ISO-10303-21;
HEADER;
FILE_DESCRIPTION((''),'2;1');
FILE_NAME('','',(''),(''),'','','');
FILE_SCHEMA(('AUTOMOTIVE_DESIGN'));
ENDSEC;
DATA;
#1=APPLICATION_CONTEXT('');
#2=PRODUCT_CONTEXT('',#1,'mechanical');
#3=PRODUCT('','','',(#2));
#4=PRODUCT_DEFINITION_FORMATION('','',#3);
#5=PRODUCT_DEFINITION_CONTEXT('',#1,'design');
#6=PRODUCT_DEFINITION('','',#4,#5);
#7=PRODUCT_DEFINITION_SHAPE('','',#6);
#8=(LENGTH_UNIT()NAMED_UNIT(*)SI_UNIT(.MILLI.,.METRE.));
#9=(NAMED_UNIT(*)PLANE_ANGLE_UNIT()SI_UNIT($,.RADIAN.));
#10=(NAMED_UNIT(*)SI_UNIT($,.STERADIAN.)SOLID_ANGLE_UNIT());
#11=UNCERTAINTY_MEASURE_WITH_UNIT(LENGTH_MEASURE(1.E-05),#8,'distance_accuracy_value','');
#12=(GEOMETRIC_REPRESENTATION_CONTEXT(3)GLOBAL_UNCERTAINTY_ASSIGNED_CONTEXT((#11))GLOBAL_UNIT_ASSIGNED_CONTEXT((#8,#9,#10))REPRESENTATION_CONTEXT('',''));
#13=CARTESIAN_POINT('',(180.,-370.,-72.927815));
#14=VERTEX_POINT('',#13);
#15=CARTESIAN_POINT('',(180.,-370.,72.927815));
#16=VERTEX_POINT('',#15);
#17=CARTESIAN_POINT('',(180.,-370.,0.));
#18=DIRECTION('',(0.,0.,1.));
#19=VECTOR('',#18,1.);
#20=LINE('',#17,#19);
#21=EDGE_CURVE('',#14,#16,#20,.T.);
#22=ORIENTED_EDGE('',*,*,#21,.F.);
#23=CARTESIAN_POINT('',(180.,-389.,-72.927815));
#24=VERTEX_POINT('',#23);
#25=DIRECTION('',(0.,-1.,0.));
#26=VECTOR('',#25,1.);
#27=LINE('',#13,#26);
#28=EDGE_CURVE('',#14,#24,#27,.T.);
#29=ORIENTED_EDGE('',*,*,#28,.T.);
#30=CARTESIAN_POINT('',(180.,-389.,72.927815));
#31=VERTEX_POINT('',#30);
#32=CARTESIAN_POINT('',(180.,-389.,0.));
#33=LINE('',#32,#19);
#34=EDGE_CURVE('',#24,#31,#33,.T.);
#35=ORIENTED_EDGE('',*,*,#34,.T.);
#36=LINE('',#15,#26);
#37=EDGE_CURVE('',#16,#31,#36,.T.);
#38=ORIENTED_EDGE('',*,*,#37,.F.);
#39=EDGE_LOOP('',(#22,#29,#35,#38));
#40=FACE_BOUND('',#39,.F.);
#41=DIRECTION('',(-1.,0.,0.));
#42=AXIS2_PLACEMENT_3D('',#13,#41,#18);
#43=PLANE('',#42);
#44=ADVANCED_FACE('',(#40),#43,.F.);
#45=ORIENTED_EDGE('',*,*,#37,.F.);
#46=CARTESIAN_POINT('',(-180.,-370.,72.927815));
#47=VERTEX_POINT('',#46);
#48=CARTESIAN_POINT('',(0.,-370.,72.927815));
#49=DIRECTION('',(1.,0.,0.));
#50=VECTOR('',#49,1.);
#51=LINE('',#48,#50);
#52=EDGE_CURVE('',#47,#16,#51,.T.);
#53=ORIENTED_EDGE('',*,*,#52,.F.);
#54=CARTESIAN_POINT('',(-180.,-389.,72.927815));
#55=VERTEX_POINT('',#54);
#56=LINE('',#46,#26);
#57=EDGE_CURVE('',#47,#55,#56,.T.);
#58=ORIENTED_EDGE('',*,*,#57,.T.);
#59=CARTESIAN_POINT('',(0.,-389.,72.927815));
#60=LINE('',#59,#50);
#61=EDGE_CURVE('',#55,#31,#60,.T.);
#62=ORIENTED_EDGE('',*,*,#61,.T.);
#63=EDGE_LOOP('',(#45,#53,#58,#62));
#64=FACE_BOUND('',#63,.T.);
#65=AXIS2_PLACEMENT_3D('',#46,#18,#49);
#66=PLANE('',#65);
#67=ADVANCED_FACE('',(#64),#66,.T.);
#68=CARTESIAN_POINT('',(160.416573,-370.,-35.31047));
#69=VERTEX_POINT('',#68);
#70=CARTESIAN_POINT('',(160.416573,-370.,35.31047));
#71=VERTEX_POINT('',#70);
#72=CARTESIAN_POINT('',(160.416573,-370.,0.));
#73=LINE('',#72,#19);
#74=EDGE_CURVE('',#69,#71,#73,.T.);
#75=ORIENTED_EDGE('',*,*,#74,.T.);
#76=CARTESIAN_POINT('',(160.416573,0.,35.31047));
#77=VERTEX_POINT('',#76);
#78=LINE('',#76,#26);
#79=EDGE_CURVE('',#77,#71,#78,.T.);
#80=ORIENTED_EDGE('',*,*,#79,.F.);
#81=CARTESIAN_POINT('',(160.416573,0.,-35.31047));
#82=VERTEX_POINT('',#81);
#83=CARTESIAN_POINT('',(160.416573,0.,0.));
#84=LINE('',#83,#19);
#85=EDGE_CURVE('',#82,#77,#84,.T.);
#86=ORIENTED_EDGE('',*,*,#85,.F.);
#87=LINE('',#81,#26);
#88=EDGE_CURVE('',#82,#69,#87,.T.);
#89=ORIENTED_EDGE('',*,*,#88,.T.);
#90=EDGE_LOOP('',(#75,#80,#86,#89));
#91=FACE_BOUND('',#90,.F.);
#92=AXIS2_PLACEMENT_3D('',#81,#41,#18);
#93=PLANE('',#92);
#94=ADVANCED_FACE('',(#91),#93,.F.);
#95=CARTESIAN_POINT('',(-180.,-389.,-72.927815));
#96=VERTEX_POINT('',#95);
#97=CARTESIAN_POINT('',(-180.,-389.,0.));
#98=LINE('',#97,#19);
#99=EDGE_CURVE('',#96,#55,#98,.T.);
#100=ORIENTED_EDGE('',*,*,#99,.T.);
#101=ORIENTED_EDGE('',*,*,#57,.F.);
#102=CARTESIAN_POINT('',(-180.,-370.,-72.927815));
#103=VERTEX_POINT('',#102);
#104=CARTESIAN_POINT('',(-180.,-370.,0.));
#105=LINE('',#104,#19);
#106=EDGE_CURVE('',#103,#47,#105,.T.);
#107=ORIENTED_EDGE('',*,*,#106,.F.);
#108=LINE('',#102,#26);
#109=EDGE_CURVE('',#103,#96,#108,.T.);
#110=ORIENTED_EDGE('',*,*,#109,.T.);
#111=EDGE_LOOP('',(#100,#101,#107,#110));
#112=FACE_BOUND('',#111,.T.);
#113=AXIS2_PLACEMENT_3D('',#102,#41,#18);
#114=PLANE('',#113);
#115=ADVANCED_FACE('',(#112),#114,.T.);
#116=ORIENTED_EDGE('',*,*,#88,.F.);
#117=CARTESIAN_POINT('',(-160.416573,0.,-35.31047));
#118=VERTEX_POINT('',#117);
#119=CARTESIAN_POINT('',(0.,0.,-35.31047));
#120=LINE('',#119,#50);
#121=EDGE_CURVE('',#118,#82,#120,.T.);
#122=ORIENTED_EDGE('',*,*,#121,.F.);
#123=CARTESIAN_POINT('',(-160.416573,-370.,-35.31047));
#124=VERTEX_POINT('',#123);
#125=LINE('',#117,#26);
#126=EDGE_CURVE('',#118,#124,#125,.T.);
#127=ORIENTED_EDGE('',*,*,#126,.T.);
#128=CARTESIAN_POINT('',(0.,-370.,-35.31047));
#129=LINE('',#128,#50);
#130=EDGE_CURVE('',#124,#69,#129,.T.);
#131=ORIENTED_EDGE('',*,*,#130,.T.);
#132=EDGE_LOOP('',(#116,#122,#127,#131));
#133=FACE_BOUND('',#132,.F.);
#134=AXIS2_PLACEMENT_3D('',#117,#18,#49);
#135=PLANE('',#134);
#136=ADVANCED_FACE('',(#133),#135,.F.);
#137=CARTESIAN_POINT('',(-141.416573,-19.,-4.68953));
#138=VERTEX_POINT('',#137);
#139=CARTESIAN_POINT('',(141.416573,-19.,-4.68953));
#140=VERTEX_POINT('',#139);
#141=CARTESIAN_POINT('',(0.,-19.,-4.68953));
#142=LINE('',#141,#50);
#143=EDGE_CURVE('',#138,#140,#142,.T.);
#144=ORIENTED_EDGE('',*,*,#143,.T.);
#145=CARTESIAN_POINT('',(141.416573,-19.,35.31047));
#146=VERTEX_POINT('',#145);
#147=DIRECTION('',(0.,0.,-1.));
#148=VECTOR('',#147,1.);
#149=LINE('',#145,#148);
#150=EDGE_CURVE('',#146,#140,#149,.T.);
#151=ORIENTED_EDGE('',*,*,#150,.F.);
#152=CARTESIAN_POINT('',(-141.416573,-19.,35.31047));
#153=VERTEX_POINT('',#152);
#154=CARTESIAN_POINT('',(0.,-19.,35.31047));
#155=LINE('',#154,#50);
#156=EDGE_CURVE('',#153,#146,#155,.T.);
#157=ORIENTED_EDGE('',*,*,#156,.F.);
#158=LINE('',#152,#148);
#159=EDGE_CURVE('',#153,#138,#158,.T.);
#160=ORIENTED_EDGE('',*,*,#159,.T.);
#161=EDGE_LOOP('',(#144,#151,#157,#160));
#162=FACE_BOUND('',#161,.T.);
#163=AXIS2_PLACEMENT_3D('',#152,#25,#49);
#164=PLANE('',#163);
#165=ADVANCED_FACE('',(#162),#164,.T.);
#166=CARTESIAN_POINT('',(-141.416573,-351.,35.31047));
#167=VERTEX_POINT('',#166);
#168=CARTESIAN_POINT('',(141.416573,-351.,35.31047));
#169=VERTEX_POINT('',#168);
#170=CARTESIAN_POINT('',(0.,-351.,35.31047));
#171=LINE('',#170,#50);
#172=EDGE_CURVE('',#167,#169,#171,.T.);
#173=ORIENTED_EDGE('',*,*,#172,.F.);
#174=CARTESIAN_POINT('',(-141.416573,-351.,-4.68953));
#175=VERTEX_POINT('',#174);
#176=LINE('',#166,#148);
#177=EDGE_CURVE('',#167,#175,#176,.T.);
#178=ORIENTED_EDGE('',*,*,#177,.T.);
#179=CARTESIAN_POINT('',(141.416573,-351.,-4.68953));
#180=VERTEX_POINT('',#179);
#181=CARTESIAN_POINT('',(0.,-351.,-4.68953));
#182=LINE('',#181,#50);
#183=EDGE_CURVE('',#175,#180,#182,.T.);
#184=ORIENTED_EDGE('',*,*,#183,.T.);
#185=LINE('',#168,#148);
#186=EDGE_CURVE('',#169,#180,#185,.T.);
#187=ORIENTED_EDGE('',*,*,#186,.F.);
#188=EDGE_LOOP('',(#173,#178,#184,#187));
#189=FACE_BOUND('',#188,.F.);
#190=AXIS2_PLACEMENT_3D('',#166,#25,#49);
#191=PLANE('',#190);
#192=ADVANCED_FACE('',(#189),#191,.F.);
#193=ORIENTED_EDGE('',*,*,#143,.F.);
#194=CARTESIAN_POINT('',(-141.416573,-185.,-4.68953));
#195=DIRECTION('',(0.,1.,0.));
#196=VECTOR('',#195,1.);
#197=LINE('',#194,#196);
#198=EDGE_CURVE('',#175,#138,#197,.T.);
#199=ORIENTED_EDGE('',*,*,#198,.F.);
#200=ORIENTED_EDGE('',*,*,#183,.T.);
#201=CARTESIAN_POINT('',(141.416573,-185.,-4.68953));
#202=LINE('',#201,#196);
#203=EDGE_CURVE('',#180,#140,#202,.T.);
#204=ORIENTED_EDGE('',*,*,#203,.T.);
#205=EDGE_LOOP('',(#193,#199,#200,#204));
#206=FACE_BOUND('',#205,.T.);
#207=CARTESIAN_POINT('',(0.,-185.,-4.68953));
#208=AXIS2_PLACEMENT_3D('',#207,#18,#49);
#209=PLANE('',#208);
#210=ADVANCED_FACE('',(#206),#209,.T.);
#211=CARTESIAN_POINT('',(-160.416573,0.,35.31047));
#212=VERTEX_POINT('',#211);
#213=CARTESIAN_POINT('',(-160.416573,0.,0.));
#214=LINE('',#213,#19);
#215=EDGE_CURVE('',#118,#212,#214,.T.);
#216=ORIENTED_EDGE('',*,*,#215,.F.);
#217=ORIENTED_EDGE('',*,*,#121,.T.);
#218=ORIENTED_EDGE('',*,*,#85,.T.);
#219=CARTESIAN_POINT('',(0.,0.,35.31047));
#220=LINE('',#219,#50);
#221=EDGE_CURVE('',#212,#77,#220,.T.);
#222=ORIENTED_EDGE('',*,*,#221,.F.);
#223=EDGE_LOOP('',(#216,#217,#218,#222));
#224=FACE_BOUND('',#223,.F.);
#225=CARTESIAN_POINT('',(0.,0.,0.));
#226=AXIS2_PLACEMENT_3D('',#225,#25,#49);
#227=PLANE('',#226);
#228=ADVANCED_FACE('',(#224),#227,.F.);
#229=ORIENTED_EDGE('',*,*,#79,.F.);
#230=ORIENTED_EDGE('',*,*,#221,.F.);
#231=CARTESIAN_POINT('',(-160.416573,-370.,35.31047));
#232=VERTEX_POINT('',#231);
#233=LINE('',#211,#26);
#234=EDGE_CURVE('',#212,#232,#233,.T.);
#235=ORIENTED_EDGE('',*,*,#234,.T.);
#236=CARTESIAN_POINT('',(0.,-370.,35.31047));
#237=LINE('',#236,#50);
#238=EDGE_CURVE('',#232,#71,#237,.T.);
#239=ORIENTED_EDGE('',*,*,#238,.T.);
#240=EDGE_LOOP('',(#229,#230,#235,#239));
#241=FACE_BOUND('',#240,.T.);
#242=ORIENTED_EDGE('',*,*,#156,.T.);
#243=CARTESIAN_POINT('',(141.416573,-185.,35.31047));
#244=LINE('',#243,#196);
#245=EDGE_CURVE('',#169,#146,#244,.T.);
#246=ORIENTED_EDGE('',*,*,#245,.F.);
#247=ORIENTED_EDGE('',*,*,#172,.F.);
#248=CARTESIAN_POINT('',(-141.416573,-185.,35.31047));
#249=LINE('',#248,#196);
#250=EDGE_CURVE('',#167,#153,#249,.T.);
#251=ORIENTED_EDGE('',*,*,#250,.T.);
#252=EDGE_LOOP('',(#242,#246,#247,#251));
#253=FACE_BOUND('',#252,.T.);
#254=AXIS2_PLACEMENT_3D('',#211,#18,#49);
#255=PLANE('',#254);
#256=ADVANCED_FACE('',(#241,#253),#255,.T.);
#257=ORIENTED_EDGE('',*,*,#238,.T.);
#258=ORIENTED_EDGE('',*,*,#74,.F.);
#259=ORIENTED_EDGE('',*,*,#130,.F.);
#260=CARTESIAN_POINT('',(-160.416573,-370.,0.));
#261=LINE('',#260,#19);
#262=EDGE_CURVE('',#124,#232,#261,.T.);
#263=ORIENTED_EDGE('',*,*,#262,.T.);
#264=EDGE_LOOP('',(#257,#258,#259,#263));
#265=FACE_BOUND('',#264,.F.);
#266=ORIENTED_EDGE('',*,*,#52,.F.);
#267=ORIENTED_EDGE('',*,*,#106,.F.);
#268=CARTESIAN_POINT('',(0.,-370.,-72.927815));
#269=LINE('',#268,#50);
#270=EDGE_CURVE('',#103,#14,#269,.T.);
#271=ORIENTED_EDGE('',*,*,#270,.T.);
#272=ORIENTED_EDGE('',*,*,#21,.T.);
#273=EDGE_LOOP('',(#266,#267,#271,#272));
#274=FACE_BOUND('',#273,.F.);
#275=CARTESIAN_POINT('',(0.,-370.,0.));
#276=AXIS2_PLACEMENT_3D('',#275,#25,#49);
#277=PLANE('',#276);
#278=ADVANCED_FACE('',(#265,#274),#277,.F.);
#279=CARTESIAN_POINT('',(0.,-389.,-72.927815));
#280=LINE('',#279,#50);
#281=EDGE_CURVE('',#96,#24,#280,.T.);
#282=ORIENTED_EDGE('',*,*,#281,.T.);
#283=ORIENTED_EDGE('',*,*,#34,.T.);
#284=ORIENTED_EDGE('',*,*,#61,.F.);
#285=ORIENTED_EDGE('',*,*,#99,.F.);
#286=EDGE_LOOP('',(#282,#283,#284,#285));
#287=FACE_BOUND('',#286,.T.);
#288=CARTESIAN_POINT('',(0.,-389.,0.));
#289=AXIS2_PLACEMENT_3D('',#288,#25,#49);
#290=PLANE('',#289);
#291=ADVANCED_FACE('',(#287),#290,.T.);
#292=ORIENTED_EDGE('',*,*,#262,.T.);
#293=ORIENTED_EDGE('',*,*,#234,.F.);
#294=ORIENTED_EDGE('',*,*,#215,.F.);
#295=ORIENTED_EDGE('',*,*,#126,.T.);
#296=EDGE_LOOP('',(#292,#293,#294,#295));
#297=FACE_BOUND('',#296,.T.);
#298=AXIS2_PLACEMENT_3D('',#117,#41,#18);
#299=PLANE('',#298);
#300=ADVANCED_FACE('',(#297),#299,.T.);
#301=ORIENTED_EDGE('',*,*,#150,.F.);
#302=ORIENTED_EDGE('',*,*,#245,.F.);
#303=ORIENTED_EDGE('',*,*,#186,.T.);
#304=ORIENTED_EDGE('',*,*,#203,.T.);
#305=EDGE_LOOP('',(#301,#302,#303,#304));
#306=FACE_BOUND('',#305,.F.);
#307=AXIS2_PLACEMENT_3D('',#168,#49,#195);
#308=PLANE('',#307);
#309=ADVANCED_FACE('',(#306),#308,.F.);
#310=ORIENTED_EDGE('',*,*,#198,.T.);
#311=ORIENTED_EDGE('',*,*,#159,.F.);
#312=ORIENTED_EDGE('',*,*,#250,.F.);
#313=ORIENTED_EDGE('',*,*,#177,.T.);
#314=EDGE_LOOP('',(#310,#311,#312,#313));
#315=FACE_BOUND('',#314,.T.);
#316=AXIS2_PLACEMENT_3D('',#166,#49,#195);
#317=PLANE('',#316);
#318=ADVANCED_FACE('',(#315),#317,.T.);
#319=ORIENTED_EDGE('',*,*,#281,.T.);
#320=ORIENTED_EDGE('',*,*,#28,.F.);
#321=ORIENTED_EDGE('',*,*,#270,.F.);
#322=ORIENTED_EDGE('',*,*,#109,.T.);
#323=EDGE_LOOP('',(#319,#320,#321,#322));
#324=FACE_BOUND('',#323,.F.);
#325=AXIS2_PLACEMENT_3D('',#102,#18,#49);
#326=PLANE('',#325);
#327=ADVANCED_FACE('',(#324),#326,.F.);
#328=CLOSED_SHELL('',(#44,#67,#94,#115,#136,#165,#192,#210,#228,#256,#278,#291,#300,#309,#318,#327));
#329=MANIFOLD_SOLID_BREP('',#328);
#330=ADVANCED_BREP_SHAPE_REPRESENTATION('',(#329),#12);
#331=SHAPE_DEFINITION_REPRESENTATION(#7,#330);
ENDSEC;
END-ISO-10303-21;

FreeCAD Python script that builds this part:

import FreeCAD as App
import Part
import Sketcher
from FreeCAD import Vector
Q = App.Units.Quantity


def add_polygon(sketch, points):
    """Adds a closed chain of lines whose ends are joined by coincident constraints."""
    first, n = sketch.GeometryCount, len(points)
    for a, b in zip(points, points[1:] + points[:1]):
        sketch.addGeometry(Part.LineSegment(App.Vector(*a, 0), App.Vector(*b, 0)), False)
    for i in range(n):
        sketch.addConstraint(Sketcher.Constraint("Coincident", first + i, 2, first + (i + 1) % n, 1))

doc = App.newDocument("Part")
params = doc.addObject("Spreadsheet::Sheet", "Params")
for row, (alias, value) in enumerate([
    ("pad1_length", "370 mm"),
    ("sketch2_height", "332 mm"),
    ("pad2_length", "40 mm"),
    ("sketch3_height", "332 mm"),
    ("pocket1_length", "40 mm"),
    ("sketch4_width", "360 mm"),
    ("pad3_length", "19 mm"),
], start=1):
    params.set(f"A{row}", alias)
    params.set(f"B{row}", "=" + value)
    params.setAlias(f"B{row}", alias)

body = doc.addObject("PartDesign::Body", "Body")

# Sketch on XZ plane
sketch1 = body.newObject("Sketcher::SketchObject", "Sketch")
sketch1.AttachmentSupport = (doc.getObject("XZ_Plane"), [""])
sketch1.MapMode = "FlatFace"
add_polygon(sketch1, [(-160, 35), (-160, -35), (160, -35), (160, 35)])  # lines 0-3
sketch1.addConstraint(Sketcher.Constraint("Vertical", 0))
sketch1.addConstraint(Sketcher.Constraint("Horizontal", 1))
sketch1.addConstraint(Sketcher.Constraint("Vertical", 2))
sketch1.addConstraint(Sketcher.Constraint("Horizontal", 3))
sketch1.addConstraint(Sketcher.Constraint("Symmetric", 0, 2, 2, 2, -1, 1))
sketch1.addConstraint(Sketcher.Constraint("DistanceY", 0, 2, 0, 1, Q("70.620939 mm")))
sketch1.addConstraint(Sketcher.Constraint("DistanceX", 1, 1, 1, 2, Q("320.833147 mm")))
pad1 = body.newObject("PartDesign::Pad", "Pad")
pad1.Profile = sketch1
pad1.setExpression("Length", "Params.pad1_length")

# Sketch on XY plane
sketch2 = body.newObject("Sketcher::SketchObject", "Sketch001")
sketch2.AttachmentSupport = (doc.getObject("XY_Plane"), [""])
sketch2.MapMode = "FlatFace"
sketch2.AttachmentOffset = App.Placement(Vector(0, 0, 35.31047), App.Rotation())
add_polygon(sketch2, [(-141, -19), (-141, -351), (141, -351), (141, -19)])  # lines 0-3
sketch2.addConstraint(Sketcher.Constraint("Vertical", 0))
sketch2.addConstraint(Sketcher.Constraint("Horizontal", 1))
sketch2.addConstraint(Sketcher.Constraint("Vertical", 2))
sketch2.addConstraint(Sketcher.Constraint("Horizontal", 3))
sketch2.addConstraint(Sketcher.Constraint("DistanceY", 0, 2, 0, 1, Q("332 mm")))
sketch2.addConstraint(Sketcher.Constraint("DistanceY", 0, 2, -1, 1, Q("351 mm")))
sketch2.addConstraint(Sketcher.Constraint("DistanceX", 1, 1, 1, 2, Q("282.833147 mm")))
sketch2.addConstraint(Sketcher.Constraint("DistanceX", 0, 2, -1, 1, Q("141.416573 mm")))
sketch2.setExpression("Constraints[8]", "Params.sketch2_height")
pad2 = body.newObject("PartDesign::Pad", "Pad001")
pad2.Profile = sketch2
pad2.setExpression("Length", "Params.pad2_length")
pad2.Reversed = True

# Sketch on XY plane
sketch3 = body.newObject("Sketcher::SketchObject", "Sketch002")
sketch3.AttachmentSupport = (doc.getObject("XY_Plane"), [""])
sketch3.MapMode = "FlatFace"
sketch3.AttachmentOffset = App.Placement(Vector(0, 0, 35.31047), App.Rotation())
add_polygon(sketch3, [(-141, -19), (-141, -351), (141, -351), (141, -19)])  # lines 0-3
sketch3.addConstraint(Sketcher.Constraint("Vertical", 0))
sketch3.addConstraint(Sketcher.Constraint("Horizontal", 1))
sketch3.addConstraint(Sketcher.Constraint("Vertical", 2))
sketch3.addConstraint(Sketcher.Constraint("Horizontal", 3))
sketch3.addConstraint(Sketcher.Constraint("DistanceY", 0, 2, 0, 1, Q("332 mm")))
sketch3.addConstraint(Sketcher.Constraint("DistanceY", 0, 2, -1, 1, Q("351 mm")))
sketch3.addConstraint(Sketcher.Constraint("DistanceX", 1, 1, 1, 2, Q("282.833147 mm")))
sketch3.addConstraint(Sketcher.Constraint("DistanceX", 0, 2, -1, 1, Q("141.416573 mm")))
sketch3.setExpression("Constraints[8]", "Params.sketch3_height")
pocket1 = body.newObject("PartDesign::Pocket", "Pocket")
pocket1.Profile = sketch3
pocket1.setExpression("Length", "Params.pocket1_length")

# Sketch on XZ plane
sketch4 = body.newObject("Sketcher::SketchObject", "Sketch003")
sketch4.AttachmentSupport = (doc.getObject("XZ_Plane"), [""])
sketch4.MapMode = "FlatFace"
sketch4.AttachmentOffset = App.Placement(Vector(0, 0, 370), App.Rotation())
add_polygon(sketch4, [(-180, 73), (-180, -73), (180, -73), (180, 73)])  # lines 0-3
sketch4.addConstraint(Sketcher.Constraint("Vertical", 0))
sketch4.addConstraint(Sketcher.Constraint("Horizontal", 1))
sketch4.addConstraint(Sketcher.Constraint("Vertical", 2))
sketch4.addConstraint(Sketcher.Constraint("Horizontal", 3))
sketch4.addConstraint(Sketcher.Constraint("Symmetric", 0, 2, 2, 2, -1, 1))
sketch4.addConstraint(Sketcher.Constraint("DistanceX", 1, 1, 1, 2, Q("360 mm")))
sketch4.addConstraint(Sketcher.Constraint("DistanceY", 0, 2, 0, 1, Q("145.85563 mm")))
sketch4.setExpression("Constraints[9]", "Params.sketch4_width")
pad3 = body.newObject("PartDesign::Pad", "Pad002")
pad3.Profile = sketch4
pad3.setExpression("Length", "Params.pad3_length")

doc.recompute()
